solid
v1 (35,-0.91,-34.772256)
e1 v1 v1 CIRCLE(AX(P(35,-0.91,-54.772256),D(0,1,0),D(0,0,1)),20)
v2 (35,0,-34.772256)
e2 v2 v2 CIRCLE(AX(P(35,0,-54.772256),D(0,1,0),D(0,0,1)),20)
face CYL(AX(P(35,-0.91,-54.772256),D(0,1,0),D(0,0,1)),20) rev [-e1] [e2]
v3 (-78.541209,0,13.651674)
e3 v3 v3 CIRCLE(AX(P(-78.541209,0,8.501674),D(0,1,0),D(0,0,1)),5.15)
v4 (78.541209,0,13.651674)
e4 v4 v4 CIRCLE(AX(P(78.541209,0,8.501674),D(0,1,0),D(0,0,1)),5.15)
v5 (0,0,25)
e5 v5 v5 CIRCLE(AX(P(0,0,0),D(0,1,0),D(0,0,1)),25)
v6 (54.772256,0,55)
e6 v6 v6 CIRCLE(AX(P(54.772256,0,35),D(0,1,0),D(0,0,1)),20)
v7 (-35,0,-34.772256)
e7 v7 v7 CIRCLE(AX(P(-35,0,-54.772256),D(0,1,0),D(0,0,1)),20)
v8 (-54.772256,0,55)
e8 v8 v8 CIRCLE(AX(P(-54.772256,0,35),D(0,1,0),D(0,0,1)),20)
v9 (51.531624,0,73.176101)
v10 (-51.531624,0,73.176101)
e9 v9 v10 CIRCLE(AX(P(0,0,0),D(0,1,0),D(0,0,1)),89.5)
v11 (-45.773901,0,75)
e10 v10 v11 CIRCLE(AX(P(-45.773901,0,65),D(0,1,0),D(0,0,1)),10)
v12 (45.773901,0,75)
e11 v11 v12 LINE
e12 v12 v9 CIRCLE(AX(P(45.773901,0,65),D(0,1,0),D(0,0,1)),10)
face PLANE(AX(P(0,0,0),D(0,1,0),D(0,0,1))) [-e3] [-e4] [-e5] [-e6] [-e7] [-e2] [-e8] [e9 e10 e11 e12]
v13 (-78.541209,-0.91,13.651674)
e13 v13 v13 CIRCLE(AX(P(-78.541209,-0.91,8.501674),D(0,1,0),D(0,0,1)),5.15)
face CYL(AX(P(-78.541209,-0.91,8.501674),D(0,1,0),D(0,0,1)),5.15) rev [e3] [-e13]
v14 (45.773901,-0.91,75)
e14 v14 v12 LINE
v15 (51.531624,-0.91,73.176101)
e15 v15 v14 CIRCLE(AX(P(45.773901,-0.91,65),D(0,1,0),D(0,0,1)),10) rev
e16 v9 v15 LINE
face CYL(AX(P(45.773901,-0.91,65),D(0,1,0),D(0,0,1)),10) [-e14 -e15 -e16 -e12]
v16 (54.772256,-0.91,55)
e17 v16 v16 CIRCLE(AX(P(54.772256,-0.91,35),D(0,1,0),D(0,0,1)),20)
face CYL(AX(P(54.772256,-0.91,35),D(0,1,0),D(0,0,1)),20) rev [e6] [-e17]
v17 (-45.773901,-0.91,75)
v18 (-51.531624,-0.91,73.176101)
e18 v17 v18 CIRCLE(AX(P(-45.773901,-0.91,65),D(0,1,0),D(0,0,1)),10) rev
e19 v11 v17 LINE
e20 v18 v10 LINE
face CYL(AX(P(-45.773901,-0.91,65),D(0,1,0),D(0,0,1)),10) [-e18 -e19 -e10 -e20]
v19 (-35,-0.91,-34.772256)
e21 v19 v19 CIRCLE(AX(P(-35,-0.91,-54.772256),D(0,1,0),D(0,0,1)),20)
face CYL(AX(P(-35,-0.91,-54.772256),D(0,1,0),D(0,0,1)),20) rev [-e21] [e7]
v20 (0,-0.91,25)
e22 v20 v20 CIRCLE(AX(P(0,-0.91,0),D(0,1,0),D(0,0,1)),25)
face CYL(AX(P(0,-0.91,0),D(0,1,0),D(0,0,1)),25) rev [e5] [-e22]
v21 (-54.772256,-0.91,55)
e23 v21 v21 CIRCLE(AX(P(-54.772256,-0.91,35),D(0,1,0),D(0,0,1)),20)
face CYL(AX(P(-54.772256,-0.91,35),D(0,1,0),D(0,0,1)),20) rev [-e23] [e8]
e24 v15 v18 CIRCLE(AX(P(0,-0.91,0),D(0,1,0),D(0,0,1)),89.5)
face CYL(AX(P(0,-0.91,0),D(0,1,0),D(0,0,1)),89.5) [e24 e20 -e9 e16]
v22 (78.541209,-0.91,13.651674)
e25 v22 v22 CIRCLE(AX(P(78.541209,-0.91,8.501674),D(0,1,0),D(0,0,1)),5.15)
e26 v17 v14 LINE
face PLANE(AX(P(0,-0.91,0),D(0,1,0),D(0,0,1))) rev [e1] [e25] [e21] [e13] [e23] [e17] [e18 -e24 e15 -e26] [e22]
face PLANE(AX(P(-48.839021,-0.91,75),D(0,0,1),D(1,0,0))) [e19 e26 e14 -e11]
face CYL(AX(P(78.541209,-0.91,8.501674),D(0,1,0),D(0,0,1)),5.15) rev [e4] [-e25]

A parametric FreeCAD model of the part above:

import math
import FreeCAD as App
import Part
import Sketcher
from FreeCAD import Vector


def edges_at(feature, points):
    """Names of the edges that pass closest to the given points."""
    edges = feature.Shape.Edges
    near = lambda p: min(range(len(edges)), key=lambda i: edges[i].distToShape(Part.Vertex(*p))[0])
    return sorted({f"Edge{near(p) + 1}" for p in points})

doc = App.newDocument("Part")
body = doc.addObject("PartDesign::Body", "Body")

# Sketch on XZ plane
sketch1 = body.newObject("Sketcher::SketchObject", "Sketch")
sketch1.AttachmentSupport = (doc.getObject("XZ_Plane"), [""])
sketch1.MapMode = "FlatFace"
sketch1.addGeometry(Part.LineSegment(Vector(-49, 75, 0), Vector(49, 75, 0)), False)
sketch1.addGeometry(Part.ArcOfCircle(Part.Circle(Vector(0, 0, 0), Vector(0, 0, 1), 90), math.radians(123), math.radians(417)), False)
sketch1.addConstraint(Sketcher.Constraint("Coincident", 0, 1, 1, 1))
sketch1.addConstraint(Sketcher.Constraint("Coincident", 1, 2, 0, 2))
sketch1.addConstraint(Sketcher.Constraint("Horizontal", 0))
sketch1.addConstraint(Sketcher.Constraint("Coincident", 1, 3, -1, 1))
sketch1.addConstraint(Sketcher.Constraint("Radius", 1, 89.5))
sketch1.addConstraint(Sketcher.Constraint("DistanceY", -1, 1, 0, 1, 75.0))
pad1 = body.newObject("PartDesign::Pad", "Pad")
pad1.Profile = sketch1
pad1.Length = 0.91

# Sketch on XZ plane
sketch2 = body.newObject("Sketcher::SketchObject", "Sketch001")
sketch2.AttachmentSupport = (doc.getObject("XZ_Plane"), [""])
sketch2.MapMode = "FlatFace"
sketch2.addGeometry(Part.Circle(Vector(79, 9, 0), Vector(0, 0, 1), 5), False)
sketch2.addGeometry(Part.Circle(Vector(-79, 9, 0), Vector(0, 0, 1), 5), False)
sketch2.addConstraint(Sketcher.Constraint("Equal", 0, 1))
sketch2.addConstraint(Sketcher.Constraint("Symmetric", 0, 3, 1, 3, -2))
sketch2.addConstraint(Sketcher.Constraint("Diameter", 0, 10.3))
sketch2.addConstraint(Sketcher.Constraint("DistanceX", -1, 1, 0, 3, 78.541209))
sketch2.addConstraint(Sketcher.Constraint("DistanceY", -1, 1, 0, 3, 8.501674))
pocket1 = body.newObject("PartDesign::Pocket", "Pocket")
pocket1.Profile = sketch2
pocket1.Type = "ThroughAll"
pocket1.Reversed = True

# Sketch on XZ plane
sketch3 = body.newObject("Sketcher::SketchObject", "Sketch002")
sketch3.AttachmentSupport = (doc.getObject("XZ_Plane"), [""])
sketch3.MapMode = "FlatFace"
sketch3.addGeometry(Part.Circle(Vector(0, 0, 0), Vector(0, 0, 1), 25), False)
sketch3.addGeometry(Part.Circle(Vector(55, 35, 0), Vector(0, 0, 1), 20), False)
sketch3.addGeometry(Part.Circle(Vector(-55, 35, 0), Vector(0, 0, 1), 20), False)
sketch3.addGeometry(Part.Circle(Vector(35, -55, 0), Vector(0, 0, 1), 20), False)
sketch3.addGeometry(Part.Circle(Vector(-35, -55, 0), Vector(0, 0, 1), 20), False)
sketch3.addConstraint(Sketcher.Constraint("Coincident", 0, 3, -1, 1))
sketch3.addConstraint(Sketcher.Constraint("Equal", 1, 2))
sketch3.addConstraint(Sketcher.Constraint("Equal", 2, 3))
sketch3.addConstraint(Sketcher.Constraint("Equal", 3, 4))
sketch3.addConstraint(Sketcher.Constraint("Symmetric", 1, 3, 2, 3, -2))
sketch3.addConstraint(Sketcher.Constraint("Symmetric", 3, 3, 4, 3, -2))
sketch3.addConstraint(Sketcher.Constraint("Diameter", 0, 50.0))
sketch3.addConstraint(Sketcher.Constraint("Diameter", 1, 40.0))
sketch3.addConstraint(Sketcher.Constraint("DistanceY", -1, 1, 1, 3, 35.0))
sketch3.addConstraint(Sketcher.Constraint("DistanceX", -1, 1, 3, 3, 35.0))
sketch3.addConstraint(Sketcher.Constraint("DistanceX", 2, 3, 1, 3, 109.544512))
sketch3.addConstraint(Sketcher.Constraint("DistanceY", 3, 3, -1, 1, 54.772256))
pocket2 = body.newObject("PartDesign::Pocket", "Pocket001")
pocket2.Profile = sketch3
pocket2.Type = "ThroughAll"
pocket2.Reversed = True
doc.recompute()

fillet = body.newObject("PartDesign::Fillet", "Fillet")
fillet.Base = (pocket2, edges_at(pocket2, [(48.839, -0.455, 75), (-48.839, -0.455, 75)]))
fillet.Radius = 10

doc.recompute()
